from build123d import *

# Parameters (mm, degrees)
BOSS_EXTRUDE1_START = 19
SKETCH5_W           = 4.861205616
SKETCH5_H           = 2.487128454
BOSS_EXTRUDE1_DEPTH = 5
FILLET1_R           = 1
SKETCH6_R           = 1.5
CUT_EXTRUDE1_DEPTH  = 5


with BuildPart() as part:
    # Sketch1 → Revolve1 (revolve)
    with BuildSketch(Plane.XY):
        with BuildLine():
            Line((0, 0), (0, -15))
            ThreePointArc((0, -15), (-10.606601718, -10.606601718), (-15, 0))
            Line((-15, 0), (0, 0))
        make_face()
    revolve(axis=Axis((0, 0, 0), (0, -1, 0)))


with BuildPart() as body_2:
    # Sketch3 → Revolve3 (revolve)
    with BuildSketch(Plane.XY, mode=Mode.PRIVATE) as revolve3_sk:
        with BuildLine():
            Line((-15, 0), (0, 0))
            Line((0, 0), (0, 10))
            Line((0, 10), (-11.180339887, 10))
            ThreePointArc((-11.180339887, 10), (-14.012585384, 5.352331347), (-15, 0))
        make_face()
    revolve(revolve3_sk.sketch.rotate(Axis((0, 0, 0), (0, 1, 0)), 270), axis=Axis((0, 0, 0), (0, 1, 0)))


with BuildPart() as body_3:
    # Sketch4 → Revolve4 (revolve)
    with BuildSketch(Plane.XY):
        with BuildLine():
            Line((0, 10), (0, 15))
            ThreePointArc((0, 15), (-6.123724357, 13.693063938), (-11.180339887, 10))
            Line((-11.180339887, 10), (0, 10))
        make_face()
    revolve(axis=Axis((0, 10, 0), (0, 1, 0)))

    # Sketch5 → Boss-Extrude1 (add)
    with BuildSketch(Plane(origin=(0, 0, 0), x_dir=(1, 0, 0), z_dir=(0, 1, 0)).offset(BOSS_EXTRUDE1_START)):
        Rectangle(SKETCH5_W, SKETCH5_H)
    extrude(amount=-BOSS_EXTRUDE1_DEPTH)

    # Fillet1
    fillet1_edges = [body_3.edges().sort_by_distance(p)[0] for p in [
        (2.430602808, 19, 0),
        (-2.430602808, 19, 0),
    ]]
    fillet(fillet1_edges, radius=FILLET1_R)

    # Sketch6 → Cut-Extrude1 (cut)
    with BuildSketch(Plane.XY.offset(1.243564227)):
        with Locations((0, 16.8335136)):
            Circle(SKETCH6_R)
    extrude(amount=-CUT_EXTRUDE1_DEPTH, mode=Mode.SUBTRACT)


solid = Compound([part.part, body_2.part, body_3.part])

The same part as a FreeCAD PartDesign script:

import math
import FreeCAD as App
import Part
import Sketcher
from FreeCAD import Vector
Q = App.Units.Quantity


def edges_at(feature, points):
    """Names of the edges that pass closest to the given points."""
    edges = feature.Shape.Edges
    near = lambda p: min(range(len(edges)), key=lambda i: edges[i].distToShape(Part.Vertex(*p))[0])
    return sorted({f"Edge{near(p) + 1}" for p in points})

doc = App.newDocument("Part")
body = doc.addObject("PartDesign::Body", "Body")

sketch1 = body.newObject("Sketcher::SketchObject", "Sketch")
sketch1.AttachmentSupport = (doc.getObject("XY_Plane"), [""])
sketch1.MapMode = "FlatFace"
sketch1.addGeometry(Part.LineSegment(Vector(0, -15, 0), Vector(0, 0, 0)), False)
sketch1.addGeometry(Part.LineSegment(Vector(0, 0, 0), Vector(-15, 0, 0)), False)
sketch1.addGeometry(Part.ArcOfCircle(Part.Circle(Vector(0, 0, 0), Vector(0, 0, 1), 15), math.radians(180), math.radians(270)), False)
sketch1.addConstraint(Sketcher.Constraint("Coincident", 0, 2, 1, 1))
sketch1.addConstraint(Sketcher.Constraint("Coincident", 1, 2, 2, 1))
sketch1.addConstraint(Sketcher.Constraint("Coincident", 2, 2, 0, 1))
sketch1.addConstraint(Sketcher.Constraint("Vertical", 0))
sketch1.addConstraint(Sketcher.Constraint("Horizontal", 1))
sketch1.addConstraint(Sketcher.Constraint("Coincident", 2, 3, -1, 1))
sketch1.addConstraint(Sketcher.Constraint("Coincident", 0, 2, -1, 1))
sketch1.addConstraint(Sketcher.Constraint("Radius", 2, Q("15 mm")))
revolution = body.newObject("PartDesign::Revolution", "Revolution")
revolution.Profile = sketch1
revolution.ReferenceAxis = (sketch1, ["V_Axis"])
revolution.Angle = 360
body2 = doc.addObject("PartDesign::Body", "Body001")

sketch2 = body2.newObject("Sketcher::SketchObject", "Sketch001")
sketch2.AttachmentSupport = (doc.getObject("XY_Plane001"), [""])
sketch2.MapMode = "FlatFace"
sketch2.addGeometry(Part.LineSegment(Vector(-15, 0, 0), Vector(0, 0, 0)), False)
sketch2.addGeometry(Part.LineSegment(Vector(0, 0, 0), Vector(0, 10, 0)), False)
sketch2.addGeometry(Part.LineSegment(Vector(0, 10, 0), Vector(-11, 10, 0)), False)
sketch2.addGeometry(Part.ArcOfCircle(Part.Circle(Vector(0, 0, 0), Vector(0, 0, 1), 15), math.radians(138), math.radians(180)), False)
sketch2.addConstraint(Sketcher.Constraint("Coincident", 0, 2, 1, 1))
sketch2.addConstraint(Sketcher.Constraint("Coincident", 1, 2, 2, 1))
sketch2.addConstraint(Sketcher.Constraint("Coincident", 2, 2, 3, 1))
sketch2.addConstraint(Sketcher.Constraint("Coincident", 3, 2, 0, 1))
sketch2.addConstraint(Sketcher.Constraint("Horizontal", 0))
sketch2.addConstraint(Sketcher.Constraint("Vertical", 1))
sketch2.addConstraint(Sketcher.Constraint("Horizontal", 2))
sketch2.addConstraint(Sketcher.Constraint("Coincident", 3, 3, -1, 1))
sketch2.addConstraint(Sketcher.Constraint("Coincident", 0, 2, -1, 1))
sketch2.addConstraint(Sketcher.Constraint("Radius", 3, Q("15 mm")))
sketch2.addConstraint(Sketcher.Constraint("DistanceY", 1, 1, 1, 2, Q("10 mm")))
revolution2 = body2.newObject("PartDesign::Revolution", "Revolution001")
revolution2.Profile = sketch2
revolution2.ReferenceAxis = (sketch2, ["V_Axis"])
revolution2.Angle = 360
body3 = doc.addObject("PartDesign::Body", "Body002")

sketch3 = body3.newObject("Sketcher::SketchObject", "Sketch002")
sketch3.AttachmentSupport = (doc.getObject("XY_Plane002"), [""])
sketch3.MapMode = "FlatFace"
sketch3.addGeometry(Part.LineSegment(Vector(0, 10, 0), Vector(0, 15, 0)), False)
sketch3.addGeometry(Part.ArcOfCircle(Part.Circle(Vector(0, 0, 0), Vector(0, 0, 1), 15), math.radians(90), math.radians(138)), False)
sketch3.addGeometry(Part.LineSegment(Vector(-11, 10, 0), Vector(0, 10, 0)), False)
sketch3.addConstraint(Sketcher.Constraint("Coincident", 0, 2, 1, 1))
sketch3.addConstraint(Sketcher.Constraint("Coincident", 1, 2, 2, 1))
sketch3.addConstraint(Sketcher.Constraint("Coincident", 2, 2, 0, 1))
sketch3.addConstraint(Sketcher.Constraint("Vertical", 0))
sketch3.addConstraint(Sketcher.Constraint("Horizontal", 2))
sketch3.addConstraint(Sketcher.Constraint("Coincident", 1, 3, -1, 1))
sketch3.addConstraint(Sketcher.Constraint("PointOnObject", 0, 2, -2))
sketch3.addConstraint(Sketcher.Constraint("Radius", 1, Q("15 mm")))
sketch3.addConstraint(Sketcher.Constraint("DistanceY", 0, 1, 0, 2, Q("5 mm")))
revolution3 = body3.newObject("PartDesign::Revolution", "Revolution002")
revolution3.Profile = sketch3
revolution3.ReferenceAxis = (sketch3, ["V_Axis"])
revolution3.Angle = 360

sketch4 = body3.newObject("Sketcher::SketchObject", "Sketch003")
sketch4.AttachmentSupport = (doc.getObject("XZ_Plane002"), [""])
sketch4.MapMode = "FlatFace"
sketch4.AttachmentOffset = App.Placement(Vector(0, 0, -19), App.Rotation())
sketch4.addGeometry(Part.LineSegment(Vector(-2.4, -1.2, 0), Vector(-2.4, 1.2, 0)), False)
sketch4.addGeometry(Part.LineSegment(Vector(-2.4, 1.2, 0), Vector(2.4, 1.2, 0)), False)
sketch4.addGeometry(Part.LineSegment(Vector(2.4, 1.2, 0), Vector(2.4, -1.2, 0)), False)
sketch4.addGeometry(Part.LineSegment(Vector(2.4, -1.2, 0), Vector(-2.4, -1.2, 0)), False)
sketch4.addConstraint(Sketcher.Constraint("Coincident", 0, 2, 1, 1))
sketch4.addConstraint(Sketcher.Constraint("Coincident", 1, 2, 2, 1))
sketch4.addConstraint(Sketcher.Constraint("Coincident", 2, 2, 3, 1))
sketch4.addConstraint(Sketcher.Constraint("Coincident", 3, 2, 0, 1))
sketch4.addConstraint(Sketcher.Constraint("Vertical", 0))
sketch4.addConstraint(Sketcher.Constraint("Horizontal", 1))
sketch4.addConstraint(Sketcher.Constraint("Vertical", 2))
sketch4.addConstraint(Sketcher.Constraint("Horizontal", 3))
sketch4.addConstraint(Sketcher.Constraint("Symmetric", 0, 2, 2, 2, -1, 1))
sketch4.addConstraint(Sketcher.Constraint("DistanceY", 0, 1, 0, 2, Q("2.487128 mm")))
sketch4.addConstraint(Sketcher.Constraint("DistanceX", 1, 1, 1, 2, Q("4.861206 mm")))
pad1 = body3.newObject("PartDesign::Pad", "Pad")
pad1.Profile = sketch4
pad1.Length = 5
doc.recompute()

fillet = body3.newObject("PartDesign::Fillet", "Fillet")
fillet.Base = (pad1, edges_at(pad1, [(2.431, 19, 0), (-2.431, 19, 0)]))
fillet.Radius = 1

sketch5 = body3.newObject("Sketcher::SketchObject", "Sketch004")
sketch5.AttachmentSupport = (doc.getObject("XY_Plane002"), [""])
sketch5.MapMode = "FlatFace"
sketch5.AttachmentOffset = App.Placement(Vector(0, 0, 1.243564), App.Rotation())
sketch5.addGeometry(Part.Circle(Vector(0, 16.8, 0), Vector(0, 0, 1), 1.5), False)
sketch5.addConstraint(Sketcher.Constraint("PointOnObject", 0, 3, -2))
sketch5.addConstraint(Sketcher.Constraint("Diameter", 0, Q("3 mm")))
sketch5.addConstraint(Sketcher.Constraint("DistanceY", -1, 1, 0, 3, Q("16.833514 mm")))
pocket1 = body3.newObject("PartDesign::Pocket", "Pocket")
pocket1.Profile = sketch5
pocket1.Length = 5

doc.recompute()
